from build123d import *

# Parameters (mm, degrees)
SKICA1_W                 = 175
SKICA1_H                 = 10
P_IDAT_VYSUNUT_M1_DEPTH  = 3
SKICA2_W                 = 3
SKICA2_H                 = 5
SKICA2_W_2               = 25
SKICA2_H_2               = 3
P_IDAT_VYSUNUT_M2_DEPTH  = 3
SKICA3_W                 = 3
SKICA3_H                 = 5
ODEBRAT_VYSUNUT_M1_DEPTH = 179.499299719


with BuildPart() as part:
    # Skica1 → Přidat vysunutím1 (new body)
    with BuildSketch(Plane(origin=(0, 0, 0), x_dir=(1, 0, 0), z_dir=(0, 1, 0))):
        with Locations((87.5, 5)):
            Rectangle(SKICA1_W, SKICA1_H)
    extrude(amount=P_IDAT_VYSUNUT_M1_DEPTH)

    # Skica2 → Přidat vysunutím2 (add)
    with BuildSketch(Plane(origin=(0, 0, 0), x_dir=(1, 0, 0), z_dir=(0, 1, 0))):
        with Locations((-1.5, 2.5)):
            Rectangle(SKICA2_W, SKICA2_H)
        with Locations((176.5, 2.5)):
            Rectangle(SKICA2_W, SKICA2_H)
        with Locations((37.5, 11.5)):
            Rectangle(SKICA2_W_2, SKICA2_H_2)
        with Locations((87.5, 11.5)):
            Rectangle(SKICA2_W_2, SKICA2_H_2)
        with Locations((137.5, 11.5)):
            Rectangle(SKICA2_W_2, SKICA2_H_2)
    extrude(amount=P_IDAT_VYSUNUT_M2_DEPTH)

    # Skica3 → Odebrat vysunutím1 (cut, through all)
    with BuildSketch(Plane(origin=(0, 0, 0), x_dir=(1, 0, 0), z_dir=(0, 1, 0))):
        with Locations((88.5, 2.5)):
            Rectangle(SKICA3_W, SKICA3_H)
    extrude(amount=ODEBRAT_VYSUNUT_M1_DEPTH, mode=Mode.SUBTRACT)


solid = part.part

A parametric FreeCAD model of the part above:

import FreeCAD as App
import Part
import Sketcher
Q = App.Units.Quantity

doc = App.newDocument("Part")
body = doc.addObject("PartDesign::Body", "Body")

# Sketch on XZ plane
sketch1 = body.newObject("Sketcher::SketchObject", "Sketch")
sketch1.AttachmentSupport = (doc.getObject("XZ_Plane"), [""])
sketch1.MapMode = "FlatFace"
sketch1.addGeometry([
    Part.LineSegment(App.Vector(0, -10, 0), App.Vector(0, 0, 0)),
    Part.LineSegment(App.Vector(0, 0, 0), App.Vector(175, 0, 0)),
    Part.LineSegment(App.Vector(175, 0, 0), App.Vector(175, -10, 0)),
    Part.LineSegment(App.Vector(175, -10, 0), App.Vector(0, -10, 0)),
], False)
sketch1.addConstraint([
    Sketcher.Constraint("Coincident", 0, 2, 1, 1),
    Sketcher.Constraint("Coincident", 1, 2, 2, 1),
    Sketcher.Constraint("Coincident", 2, 2, 3, 1),
    Sketcher.Constraint("Coincident", 3, 2, 0, 1),
    Sketcher.Constraint("Vertical", 0),
    Sketcher.Constraint("Horizontal", 1),
    Sketcher.Constraint("Vertical", 2),
    Sketcher.Constraint("Horizontal", 3),
    Sketcher.Constraint("Coincident", 0, 2, -1, 1),
    Sketcher.Constraint("DistanceX", 1, 1, 1, 2, Q("175 mm")),
    Sketcher.Constraint("DistanceY", 0, 1, 0, 2, Q("10 mm")),
])
pad1 = body.newObject("PartDesign::Pad", "Pad")
pad1.Profile = sketch1
pad1.Length = 3
pad1.Reversed = True

# Sketch on XZ plane
sketch2 = body.newObject("Sketcher::SketchObject", "Sketch001")
sketch2.AttachmentSupport = (doc.getObject("XZ_Plane"), [""])
sketch2.MapMode = "FlatFace"
sketch2.addGeometry([
    Part.LineSegment(App.Vector(-3, -5, 0), App.Vector(-3, 0, 0)),  # 0
    Part.LineSegment(App.Vector(-3, 0, 0), App.Vector(0, 0, 0)),  # 1
    Part.LineSegment(App.Vector(0, 0, 0), App.Vector(0, -5, 0)),  # 2
    Part.LineSegment(App.Vector(0, -5, 0), App.Vector(-3, -5, 0)),  # 3
    Part.LineSegment(App.Vector(175, -5, 0), App.Vector(175, 0, 0)),  # 4
    Part.LineSegment(App.Vector(175, 0, 0), App.Vector(178, 0, 0)),  # 5
    Part.LineSegment(App.Vector(178, 0, 0), App.Vector(178, -5, 0)),  # 6
    Part.LineSegment(App.Vector(178, -5, 0), App.Vector(175, -5, 0)),  # 7
    Part.LineSegment(App.Vector(25, -13, 0), App.Vector(25, -10, 0)),  # 8
    Part.LineSegment(App.Vector(25, -10, 0), App.Vector(50, -10, 0)),  # 9
    Part.LineSegment(App.Vector(50, -10, 0), App.Vector(50, -13, 0)),  # 10
    Part.LineSegment(App.Vector(50, -13, 0), App.Vector(25, -13, 0)),  # 11
    Part.LineSegment(App.Vector(75, -13, 0), App.Vector(75, -10, 0)),  # 12
    Part.LineSegment(App.Vector(75, -10, 0), App.Vector(100, -10, 0)),  # 13
    Part.LineSegment(App.Vector(100, -10, 0), App.Vector(100, -13, 0)),  # 14
    Part.LineSegment(App.Vector(100, -13, 0), App.Vector(75, -13, 0)),  # 15
    Part.LineSegment(App.Vector(125, -13, 0), App.Vector(125, -10, 0)),  # 16
    Part.LineSegment(App.Vector(125, -10, 0), App.Vector(150, -10, 0)),  # 17
    Part.LineSegment(App.Vector(150, -10, 0), App.Vector(150, -13, 0)),  # 18
    Part.LineSegment(App.Vector(150, -13, 0), App.Vector(125, -13, 0)),  # 19
], False)
sketch2.addConstraint([
    Sketcher.Constraint("Coincident", 0, 2, 1, 1),
    Sketcher.Constraint("Coincident", 1, 2, 2, 1),
    Sketcher.Constraint("Coincident", 2, 2, 3, 1),
    Sketcher.Constraint("Coincident", 3, 2, 0, 1),
    Sketcher.Constraint("Coincident", 4, 2, 5, 1),
    Sketcher.Constraint("Coincident", 5, 2, 6, 1),
    Sketcher.Constraint("Coincident", 6, 2, 7, 1),
    Sketcher.Constraint("Coincident", 7, 2, 4, 1),
    Sketcher.Constraint("Coincident", 8, 2, 9, 1),
    Sketcher.Constraint("Coincident", 9, 2, 10, 1),
    Sketcher.Constraint("Coincident", 10, 2, 11, 1),
    Sketcher.Constraint("Coincident", 11, 2, 8, 1),
    Sketcher.Constraint("Coincident", 12, 2, 13, 1),
    Sketcher.Constraint("Coincident", 13, 2, 14, 1),
    Sketcher.Constraint("Coincident", 14, 2, 15, 1),
    Sketcher.Constraint("Coincident", 15, 2, 12, 1),
    Sketcher.Constraint("Coincident", 16, 2, 17, 1),
    Sketcher.Constraint("Coincident", 17, 2, 18, 1),
    Sketcher.Constraint("Coincident", 18, 2, 19, 1),
    Sketcher.Constraint("Coincident", 19, 2, 16, 1),
    Sketcher.Constraint("Vertical", 0),
    Sketcher.Constraint("Horizontal", 1),
    Sketcher.Constraint("Vertical", 2),
    Sketcher.Constraint("Horizontal", 3),
    Sketcher.Constraint("Vertical", 4),
    Sketcher.Constraint("Horizontal", 5),
    Sketcher.Constraint("Vertical", 6),
    Sketcher.Constraint("Horizontal", 7),
    Sketcher.Constraint("Vertical", 8),
    Sketcher.Constraint("Horizontal", 9),
    Sketcher.Constraint("Vertical", 10),
    Sketcher.Constraint("Horizontal", 11),
    Sketcher.Constraint("Vertical", 12),
    Sketcher.Constraint("Horizontal", 13),
    Sketcher.Constraint("Vertical", 14),
    Sketcher.Constraint("Horizontal", 15),
    Sketcher.Constraint("Vertical", 16),
    Sketcher.Constraint("Horizontal", 17),
    Sketcher.Constraint("Vertical", 18),
    Sketcher.Constraint("Horizontal", 19),
    Sketcher.Constraint("Coincident", 1, 2, -1, 1),
    Sketcher.Constraint("PointOnObject", 4, 2, -1),
    Sketcher.Constraint("Horizontal", 3, 2, 6, 2),
    Sketcher.Constraint("Horizontal", 9, 2, 12, 2),
    Sketcher.Constraint("Horizontal", 11, 2, 14, 2),
    Sketcher.Constraint("Horizontal", 13, 2, 16, 2),
    Sketcher.Constraint("Horizontal", 15, 2, 18, 2),
    Sketcher.Constraint("Equal", 3, 5),
    Sketcher.Constraint("Equal", 11, 13),
    Sketcher.Constraint("Equal", 15, 17),
    Sketcher.Constraint("Equal", 7, 8),
    Sketcher.Constraint("DistanceX", 1, 1, 1, 2, Q("3 mm")),
    Sketcher.Constraint("DistanceX", 9, 1, 9, 2, Q("25 mm")),
    Sketcher.Constraint("DistanceY", 0, 1, 0, 2, Q("5 mm")),
    Sketcher.Constraint("DistanceX", -1, 1, 4, 2, Q("175 mm")),
    Sketcher.Constraint("DistanceX", -1, 1, 8, 2, Q("25 mm")),
    Sketcher.Constraint("DistanceY", 8, 2, -1, 1, Q("10 mm")),
    Sketcher.Constraint("DistanceX", -1, 1, 12, 2, Q("75 mm")),
    Sketcher.Constraint("DistanceX", -1, 1, 16, 2, Q("125 mm")),
])
pad2 = body.newObject("PartDesign::Pad", "Pad001")
pad2.Profile = sketch2
pad2.Length = 3
pad2.Reversed = True

# Sketch on XZ plane
sketch3 = body.newObject("Sketcher::SketchObject", "Sketch002")
sketch3.AttachmentSupport = (doc.getObject("XZ_Plane"), [""])
sketch3.MapMode = "FlatFace"
sketch3.addGeometry([
    Part.LineSegment(App.Vector(87, -5, 0), App.Vector(87, 0, 0)),
    Part.LineSegment(App.Vector(87, 0, 0), App.Vector(90, 0, 0)),
    Part.LineSegment(App.Vector(90, 0, 0), App.Vector(90, -5, 0)),
    Part.LineSegment(App.Vector(90, -5, 0), App.Vector(87, -5, 0)),
], False)
sketch3.addConstraint([
    Sketcher.Constraint("Coincident", 0, 2, 1, 1),
    Sketcher.Constraint("Coincident", 1, 2, 2, 1),
    Sketcher.Constraint("Coincident", 2, 2, 3, 1),
    Sketcher.Constraint("Coincident", 3, 2, 0, 1),
    Sketcher.Constraint("Vertical", 0),
    Sketcher.Constraint("Horizontal", 1),
    Sketcher.Constraint("Vertical", 2),
    Sketcher.Constraint("Horizontal", 3),
    Sketcher.Constraint("PointOnObject", 0, 2, -1),
    Sketcher.Constraint("DistanceX", 1, 1, 1, 2, Q("3 mm")),
    Sketcher.Constraint("DistanceY", 0, 1, 0, 2, Q("5 mm")),
    Sketcher.Constraint("DistanceX", -1, 1, 0, 2, Q("87 mm")),
])
pocket1 = body.newObject("PartDesign::Pocket", "Pocket")
pocket1.Profile = sketch3
pocket1.Type = "ThroughAll"

doc.recompute()
